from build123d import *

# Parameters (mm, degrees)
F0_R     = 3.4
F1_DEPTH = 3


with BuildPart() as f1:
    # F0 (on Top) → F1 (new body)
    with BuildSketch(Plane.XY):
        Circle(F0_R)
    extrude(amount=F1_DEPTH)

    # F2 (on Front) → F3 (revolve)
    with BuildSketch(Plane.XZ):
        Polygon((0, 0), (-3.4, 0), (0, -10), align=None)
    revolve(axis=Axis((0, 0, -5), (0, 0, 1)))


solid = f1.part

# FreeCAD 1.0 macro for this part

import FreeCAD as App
import Part
import Sketcher

V = App.Vector
Q = App.Units.Quantity

doc = App.newDocument("Part")
body = doc.addObject("PartDesign::Body", "Body")

# Sketch on XY plane
sketch1 = body.newObject("Sketcher::SketchObject", "Sketch")
sketch1.AttachmentSupport = (doc.getObject("XY_Plane"), [""])
sketch1.MapMode = "FlatFace"
sketch1.addGeometry(Part.Circle(V(0, 0, 0), V(0, 0, 1), 3.4), False)
sketch1.addConstraint(Sketcher.Constraint("Coincident", 0, 3, -1, 1))
sketch1.addConstraint(Sketcher.Constraint("Diameter", 0, Q("6.8 mm")))
pad1 = body.newObject("PartDesign::Pad", "Pad")
pad1.Profile = sketch1
pad1.Length = 3

# Sketch on XZ plane
sketch2 = body.newObject("Sketcher::SketchObject", "Sketch001")
sketch2.AttachmentSupport = (doc.getObject("XZ_Plane"), [""])
sketch2.MapMode = "FlatFace"
sketch2.addGeometry(Part.LineSegment(V(0, 0, 0), V(-3.4, 0, 0)), False)
sketch2.addGeometry(Part.LineSegment(V(-3.4, 0, 0), V(0, -10, 0)), False)
sketch2.addGeometry(Part.LineSegment(V(0, -10, 0), V(0, 0, 0)), False)
sketch2.addConstraint(Sketcher.Constraint("Coincident", 0, 2, 1, 1))
sketch2.addConstraint(Sketcher.Constraint("Coincident", 1, 2, 2, 1))
sketch2.addConstraint(Sketcher.Constraint("Coincident", 2, 2, 0, 1))
sketch2.addConstraint(Sketcher.Constraint("Horizontal", 0))
sketch2.addConstraint(Sketcher.Constraint("Vertical", 2))
sketch2.addConstraint(Sketcher.Constraint("Coincident", 2, 2, -1, 1))
sketch2.addConstraint(Sketcher.Constraint("DistanceY", 2, 1, 2, 2, Q("10 mm")))
sketch2.addConstraint(Sketcher.Constraint("DistanceX", 0, 2, 0, 1, Q("3.4 mm")))
revolution = body.newObject("PartDesign::Revolution", "Revolution")
revolution.Profile = sketch2
revolution.ReferenceAxis = (sketch2, ["V_Axis"])
revolution.Angle = 360

doc.recompute()
